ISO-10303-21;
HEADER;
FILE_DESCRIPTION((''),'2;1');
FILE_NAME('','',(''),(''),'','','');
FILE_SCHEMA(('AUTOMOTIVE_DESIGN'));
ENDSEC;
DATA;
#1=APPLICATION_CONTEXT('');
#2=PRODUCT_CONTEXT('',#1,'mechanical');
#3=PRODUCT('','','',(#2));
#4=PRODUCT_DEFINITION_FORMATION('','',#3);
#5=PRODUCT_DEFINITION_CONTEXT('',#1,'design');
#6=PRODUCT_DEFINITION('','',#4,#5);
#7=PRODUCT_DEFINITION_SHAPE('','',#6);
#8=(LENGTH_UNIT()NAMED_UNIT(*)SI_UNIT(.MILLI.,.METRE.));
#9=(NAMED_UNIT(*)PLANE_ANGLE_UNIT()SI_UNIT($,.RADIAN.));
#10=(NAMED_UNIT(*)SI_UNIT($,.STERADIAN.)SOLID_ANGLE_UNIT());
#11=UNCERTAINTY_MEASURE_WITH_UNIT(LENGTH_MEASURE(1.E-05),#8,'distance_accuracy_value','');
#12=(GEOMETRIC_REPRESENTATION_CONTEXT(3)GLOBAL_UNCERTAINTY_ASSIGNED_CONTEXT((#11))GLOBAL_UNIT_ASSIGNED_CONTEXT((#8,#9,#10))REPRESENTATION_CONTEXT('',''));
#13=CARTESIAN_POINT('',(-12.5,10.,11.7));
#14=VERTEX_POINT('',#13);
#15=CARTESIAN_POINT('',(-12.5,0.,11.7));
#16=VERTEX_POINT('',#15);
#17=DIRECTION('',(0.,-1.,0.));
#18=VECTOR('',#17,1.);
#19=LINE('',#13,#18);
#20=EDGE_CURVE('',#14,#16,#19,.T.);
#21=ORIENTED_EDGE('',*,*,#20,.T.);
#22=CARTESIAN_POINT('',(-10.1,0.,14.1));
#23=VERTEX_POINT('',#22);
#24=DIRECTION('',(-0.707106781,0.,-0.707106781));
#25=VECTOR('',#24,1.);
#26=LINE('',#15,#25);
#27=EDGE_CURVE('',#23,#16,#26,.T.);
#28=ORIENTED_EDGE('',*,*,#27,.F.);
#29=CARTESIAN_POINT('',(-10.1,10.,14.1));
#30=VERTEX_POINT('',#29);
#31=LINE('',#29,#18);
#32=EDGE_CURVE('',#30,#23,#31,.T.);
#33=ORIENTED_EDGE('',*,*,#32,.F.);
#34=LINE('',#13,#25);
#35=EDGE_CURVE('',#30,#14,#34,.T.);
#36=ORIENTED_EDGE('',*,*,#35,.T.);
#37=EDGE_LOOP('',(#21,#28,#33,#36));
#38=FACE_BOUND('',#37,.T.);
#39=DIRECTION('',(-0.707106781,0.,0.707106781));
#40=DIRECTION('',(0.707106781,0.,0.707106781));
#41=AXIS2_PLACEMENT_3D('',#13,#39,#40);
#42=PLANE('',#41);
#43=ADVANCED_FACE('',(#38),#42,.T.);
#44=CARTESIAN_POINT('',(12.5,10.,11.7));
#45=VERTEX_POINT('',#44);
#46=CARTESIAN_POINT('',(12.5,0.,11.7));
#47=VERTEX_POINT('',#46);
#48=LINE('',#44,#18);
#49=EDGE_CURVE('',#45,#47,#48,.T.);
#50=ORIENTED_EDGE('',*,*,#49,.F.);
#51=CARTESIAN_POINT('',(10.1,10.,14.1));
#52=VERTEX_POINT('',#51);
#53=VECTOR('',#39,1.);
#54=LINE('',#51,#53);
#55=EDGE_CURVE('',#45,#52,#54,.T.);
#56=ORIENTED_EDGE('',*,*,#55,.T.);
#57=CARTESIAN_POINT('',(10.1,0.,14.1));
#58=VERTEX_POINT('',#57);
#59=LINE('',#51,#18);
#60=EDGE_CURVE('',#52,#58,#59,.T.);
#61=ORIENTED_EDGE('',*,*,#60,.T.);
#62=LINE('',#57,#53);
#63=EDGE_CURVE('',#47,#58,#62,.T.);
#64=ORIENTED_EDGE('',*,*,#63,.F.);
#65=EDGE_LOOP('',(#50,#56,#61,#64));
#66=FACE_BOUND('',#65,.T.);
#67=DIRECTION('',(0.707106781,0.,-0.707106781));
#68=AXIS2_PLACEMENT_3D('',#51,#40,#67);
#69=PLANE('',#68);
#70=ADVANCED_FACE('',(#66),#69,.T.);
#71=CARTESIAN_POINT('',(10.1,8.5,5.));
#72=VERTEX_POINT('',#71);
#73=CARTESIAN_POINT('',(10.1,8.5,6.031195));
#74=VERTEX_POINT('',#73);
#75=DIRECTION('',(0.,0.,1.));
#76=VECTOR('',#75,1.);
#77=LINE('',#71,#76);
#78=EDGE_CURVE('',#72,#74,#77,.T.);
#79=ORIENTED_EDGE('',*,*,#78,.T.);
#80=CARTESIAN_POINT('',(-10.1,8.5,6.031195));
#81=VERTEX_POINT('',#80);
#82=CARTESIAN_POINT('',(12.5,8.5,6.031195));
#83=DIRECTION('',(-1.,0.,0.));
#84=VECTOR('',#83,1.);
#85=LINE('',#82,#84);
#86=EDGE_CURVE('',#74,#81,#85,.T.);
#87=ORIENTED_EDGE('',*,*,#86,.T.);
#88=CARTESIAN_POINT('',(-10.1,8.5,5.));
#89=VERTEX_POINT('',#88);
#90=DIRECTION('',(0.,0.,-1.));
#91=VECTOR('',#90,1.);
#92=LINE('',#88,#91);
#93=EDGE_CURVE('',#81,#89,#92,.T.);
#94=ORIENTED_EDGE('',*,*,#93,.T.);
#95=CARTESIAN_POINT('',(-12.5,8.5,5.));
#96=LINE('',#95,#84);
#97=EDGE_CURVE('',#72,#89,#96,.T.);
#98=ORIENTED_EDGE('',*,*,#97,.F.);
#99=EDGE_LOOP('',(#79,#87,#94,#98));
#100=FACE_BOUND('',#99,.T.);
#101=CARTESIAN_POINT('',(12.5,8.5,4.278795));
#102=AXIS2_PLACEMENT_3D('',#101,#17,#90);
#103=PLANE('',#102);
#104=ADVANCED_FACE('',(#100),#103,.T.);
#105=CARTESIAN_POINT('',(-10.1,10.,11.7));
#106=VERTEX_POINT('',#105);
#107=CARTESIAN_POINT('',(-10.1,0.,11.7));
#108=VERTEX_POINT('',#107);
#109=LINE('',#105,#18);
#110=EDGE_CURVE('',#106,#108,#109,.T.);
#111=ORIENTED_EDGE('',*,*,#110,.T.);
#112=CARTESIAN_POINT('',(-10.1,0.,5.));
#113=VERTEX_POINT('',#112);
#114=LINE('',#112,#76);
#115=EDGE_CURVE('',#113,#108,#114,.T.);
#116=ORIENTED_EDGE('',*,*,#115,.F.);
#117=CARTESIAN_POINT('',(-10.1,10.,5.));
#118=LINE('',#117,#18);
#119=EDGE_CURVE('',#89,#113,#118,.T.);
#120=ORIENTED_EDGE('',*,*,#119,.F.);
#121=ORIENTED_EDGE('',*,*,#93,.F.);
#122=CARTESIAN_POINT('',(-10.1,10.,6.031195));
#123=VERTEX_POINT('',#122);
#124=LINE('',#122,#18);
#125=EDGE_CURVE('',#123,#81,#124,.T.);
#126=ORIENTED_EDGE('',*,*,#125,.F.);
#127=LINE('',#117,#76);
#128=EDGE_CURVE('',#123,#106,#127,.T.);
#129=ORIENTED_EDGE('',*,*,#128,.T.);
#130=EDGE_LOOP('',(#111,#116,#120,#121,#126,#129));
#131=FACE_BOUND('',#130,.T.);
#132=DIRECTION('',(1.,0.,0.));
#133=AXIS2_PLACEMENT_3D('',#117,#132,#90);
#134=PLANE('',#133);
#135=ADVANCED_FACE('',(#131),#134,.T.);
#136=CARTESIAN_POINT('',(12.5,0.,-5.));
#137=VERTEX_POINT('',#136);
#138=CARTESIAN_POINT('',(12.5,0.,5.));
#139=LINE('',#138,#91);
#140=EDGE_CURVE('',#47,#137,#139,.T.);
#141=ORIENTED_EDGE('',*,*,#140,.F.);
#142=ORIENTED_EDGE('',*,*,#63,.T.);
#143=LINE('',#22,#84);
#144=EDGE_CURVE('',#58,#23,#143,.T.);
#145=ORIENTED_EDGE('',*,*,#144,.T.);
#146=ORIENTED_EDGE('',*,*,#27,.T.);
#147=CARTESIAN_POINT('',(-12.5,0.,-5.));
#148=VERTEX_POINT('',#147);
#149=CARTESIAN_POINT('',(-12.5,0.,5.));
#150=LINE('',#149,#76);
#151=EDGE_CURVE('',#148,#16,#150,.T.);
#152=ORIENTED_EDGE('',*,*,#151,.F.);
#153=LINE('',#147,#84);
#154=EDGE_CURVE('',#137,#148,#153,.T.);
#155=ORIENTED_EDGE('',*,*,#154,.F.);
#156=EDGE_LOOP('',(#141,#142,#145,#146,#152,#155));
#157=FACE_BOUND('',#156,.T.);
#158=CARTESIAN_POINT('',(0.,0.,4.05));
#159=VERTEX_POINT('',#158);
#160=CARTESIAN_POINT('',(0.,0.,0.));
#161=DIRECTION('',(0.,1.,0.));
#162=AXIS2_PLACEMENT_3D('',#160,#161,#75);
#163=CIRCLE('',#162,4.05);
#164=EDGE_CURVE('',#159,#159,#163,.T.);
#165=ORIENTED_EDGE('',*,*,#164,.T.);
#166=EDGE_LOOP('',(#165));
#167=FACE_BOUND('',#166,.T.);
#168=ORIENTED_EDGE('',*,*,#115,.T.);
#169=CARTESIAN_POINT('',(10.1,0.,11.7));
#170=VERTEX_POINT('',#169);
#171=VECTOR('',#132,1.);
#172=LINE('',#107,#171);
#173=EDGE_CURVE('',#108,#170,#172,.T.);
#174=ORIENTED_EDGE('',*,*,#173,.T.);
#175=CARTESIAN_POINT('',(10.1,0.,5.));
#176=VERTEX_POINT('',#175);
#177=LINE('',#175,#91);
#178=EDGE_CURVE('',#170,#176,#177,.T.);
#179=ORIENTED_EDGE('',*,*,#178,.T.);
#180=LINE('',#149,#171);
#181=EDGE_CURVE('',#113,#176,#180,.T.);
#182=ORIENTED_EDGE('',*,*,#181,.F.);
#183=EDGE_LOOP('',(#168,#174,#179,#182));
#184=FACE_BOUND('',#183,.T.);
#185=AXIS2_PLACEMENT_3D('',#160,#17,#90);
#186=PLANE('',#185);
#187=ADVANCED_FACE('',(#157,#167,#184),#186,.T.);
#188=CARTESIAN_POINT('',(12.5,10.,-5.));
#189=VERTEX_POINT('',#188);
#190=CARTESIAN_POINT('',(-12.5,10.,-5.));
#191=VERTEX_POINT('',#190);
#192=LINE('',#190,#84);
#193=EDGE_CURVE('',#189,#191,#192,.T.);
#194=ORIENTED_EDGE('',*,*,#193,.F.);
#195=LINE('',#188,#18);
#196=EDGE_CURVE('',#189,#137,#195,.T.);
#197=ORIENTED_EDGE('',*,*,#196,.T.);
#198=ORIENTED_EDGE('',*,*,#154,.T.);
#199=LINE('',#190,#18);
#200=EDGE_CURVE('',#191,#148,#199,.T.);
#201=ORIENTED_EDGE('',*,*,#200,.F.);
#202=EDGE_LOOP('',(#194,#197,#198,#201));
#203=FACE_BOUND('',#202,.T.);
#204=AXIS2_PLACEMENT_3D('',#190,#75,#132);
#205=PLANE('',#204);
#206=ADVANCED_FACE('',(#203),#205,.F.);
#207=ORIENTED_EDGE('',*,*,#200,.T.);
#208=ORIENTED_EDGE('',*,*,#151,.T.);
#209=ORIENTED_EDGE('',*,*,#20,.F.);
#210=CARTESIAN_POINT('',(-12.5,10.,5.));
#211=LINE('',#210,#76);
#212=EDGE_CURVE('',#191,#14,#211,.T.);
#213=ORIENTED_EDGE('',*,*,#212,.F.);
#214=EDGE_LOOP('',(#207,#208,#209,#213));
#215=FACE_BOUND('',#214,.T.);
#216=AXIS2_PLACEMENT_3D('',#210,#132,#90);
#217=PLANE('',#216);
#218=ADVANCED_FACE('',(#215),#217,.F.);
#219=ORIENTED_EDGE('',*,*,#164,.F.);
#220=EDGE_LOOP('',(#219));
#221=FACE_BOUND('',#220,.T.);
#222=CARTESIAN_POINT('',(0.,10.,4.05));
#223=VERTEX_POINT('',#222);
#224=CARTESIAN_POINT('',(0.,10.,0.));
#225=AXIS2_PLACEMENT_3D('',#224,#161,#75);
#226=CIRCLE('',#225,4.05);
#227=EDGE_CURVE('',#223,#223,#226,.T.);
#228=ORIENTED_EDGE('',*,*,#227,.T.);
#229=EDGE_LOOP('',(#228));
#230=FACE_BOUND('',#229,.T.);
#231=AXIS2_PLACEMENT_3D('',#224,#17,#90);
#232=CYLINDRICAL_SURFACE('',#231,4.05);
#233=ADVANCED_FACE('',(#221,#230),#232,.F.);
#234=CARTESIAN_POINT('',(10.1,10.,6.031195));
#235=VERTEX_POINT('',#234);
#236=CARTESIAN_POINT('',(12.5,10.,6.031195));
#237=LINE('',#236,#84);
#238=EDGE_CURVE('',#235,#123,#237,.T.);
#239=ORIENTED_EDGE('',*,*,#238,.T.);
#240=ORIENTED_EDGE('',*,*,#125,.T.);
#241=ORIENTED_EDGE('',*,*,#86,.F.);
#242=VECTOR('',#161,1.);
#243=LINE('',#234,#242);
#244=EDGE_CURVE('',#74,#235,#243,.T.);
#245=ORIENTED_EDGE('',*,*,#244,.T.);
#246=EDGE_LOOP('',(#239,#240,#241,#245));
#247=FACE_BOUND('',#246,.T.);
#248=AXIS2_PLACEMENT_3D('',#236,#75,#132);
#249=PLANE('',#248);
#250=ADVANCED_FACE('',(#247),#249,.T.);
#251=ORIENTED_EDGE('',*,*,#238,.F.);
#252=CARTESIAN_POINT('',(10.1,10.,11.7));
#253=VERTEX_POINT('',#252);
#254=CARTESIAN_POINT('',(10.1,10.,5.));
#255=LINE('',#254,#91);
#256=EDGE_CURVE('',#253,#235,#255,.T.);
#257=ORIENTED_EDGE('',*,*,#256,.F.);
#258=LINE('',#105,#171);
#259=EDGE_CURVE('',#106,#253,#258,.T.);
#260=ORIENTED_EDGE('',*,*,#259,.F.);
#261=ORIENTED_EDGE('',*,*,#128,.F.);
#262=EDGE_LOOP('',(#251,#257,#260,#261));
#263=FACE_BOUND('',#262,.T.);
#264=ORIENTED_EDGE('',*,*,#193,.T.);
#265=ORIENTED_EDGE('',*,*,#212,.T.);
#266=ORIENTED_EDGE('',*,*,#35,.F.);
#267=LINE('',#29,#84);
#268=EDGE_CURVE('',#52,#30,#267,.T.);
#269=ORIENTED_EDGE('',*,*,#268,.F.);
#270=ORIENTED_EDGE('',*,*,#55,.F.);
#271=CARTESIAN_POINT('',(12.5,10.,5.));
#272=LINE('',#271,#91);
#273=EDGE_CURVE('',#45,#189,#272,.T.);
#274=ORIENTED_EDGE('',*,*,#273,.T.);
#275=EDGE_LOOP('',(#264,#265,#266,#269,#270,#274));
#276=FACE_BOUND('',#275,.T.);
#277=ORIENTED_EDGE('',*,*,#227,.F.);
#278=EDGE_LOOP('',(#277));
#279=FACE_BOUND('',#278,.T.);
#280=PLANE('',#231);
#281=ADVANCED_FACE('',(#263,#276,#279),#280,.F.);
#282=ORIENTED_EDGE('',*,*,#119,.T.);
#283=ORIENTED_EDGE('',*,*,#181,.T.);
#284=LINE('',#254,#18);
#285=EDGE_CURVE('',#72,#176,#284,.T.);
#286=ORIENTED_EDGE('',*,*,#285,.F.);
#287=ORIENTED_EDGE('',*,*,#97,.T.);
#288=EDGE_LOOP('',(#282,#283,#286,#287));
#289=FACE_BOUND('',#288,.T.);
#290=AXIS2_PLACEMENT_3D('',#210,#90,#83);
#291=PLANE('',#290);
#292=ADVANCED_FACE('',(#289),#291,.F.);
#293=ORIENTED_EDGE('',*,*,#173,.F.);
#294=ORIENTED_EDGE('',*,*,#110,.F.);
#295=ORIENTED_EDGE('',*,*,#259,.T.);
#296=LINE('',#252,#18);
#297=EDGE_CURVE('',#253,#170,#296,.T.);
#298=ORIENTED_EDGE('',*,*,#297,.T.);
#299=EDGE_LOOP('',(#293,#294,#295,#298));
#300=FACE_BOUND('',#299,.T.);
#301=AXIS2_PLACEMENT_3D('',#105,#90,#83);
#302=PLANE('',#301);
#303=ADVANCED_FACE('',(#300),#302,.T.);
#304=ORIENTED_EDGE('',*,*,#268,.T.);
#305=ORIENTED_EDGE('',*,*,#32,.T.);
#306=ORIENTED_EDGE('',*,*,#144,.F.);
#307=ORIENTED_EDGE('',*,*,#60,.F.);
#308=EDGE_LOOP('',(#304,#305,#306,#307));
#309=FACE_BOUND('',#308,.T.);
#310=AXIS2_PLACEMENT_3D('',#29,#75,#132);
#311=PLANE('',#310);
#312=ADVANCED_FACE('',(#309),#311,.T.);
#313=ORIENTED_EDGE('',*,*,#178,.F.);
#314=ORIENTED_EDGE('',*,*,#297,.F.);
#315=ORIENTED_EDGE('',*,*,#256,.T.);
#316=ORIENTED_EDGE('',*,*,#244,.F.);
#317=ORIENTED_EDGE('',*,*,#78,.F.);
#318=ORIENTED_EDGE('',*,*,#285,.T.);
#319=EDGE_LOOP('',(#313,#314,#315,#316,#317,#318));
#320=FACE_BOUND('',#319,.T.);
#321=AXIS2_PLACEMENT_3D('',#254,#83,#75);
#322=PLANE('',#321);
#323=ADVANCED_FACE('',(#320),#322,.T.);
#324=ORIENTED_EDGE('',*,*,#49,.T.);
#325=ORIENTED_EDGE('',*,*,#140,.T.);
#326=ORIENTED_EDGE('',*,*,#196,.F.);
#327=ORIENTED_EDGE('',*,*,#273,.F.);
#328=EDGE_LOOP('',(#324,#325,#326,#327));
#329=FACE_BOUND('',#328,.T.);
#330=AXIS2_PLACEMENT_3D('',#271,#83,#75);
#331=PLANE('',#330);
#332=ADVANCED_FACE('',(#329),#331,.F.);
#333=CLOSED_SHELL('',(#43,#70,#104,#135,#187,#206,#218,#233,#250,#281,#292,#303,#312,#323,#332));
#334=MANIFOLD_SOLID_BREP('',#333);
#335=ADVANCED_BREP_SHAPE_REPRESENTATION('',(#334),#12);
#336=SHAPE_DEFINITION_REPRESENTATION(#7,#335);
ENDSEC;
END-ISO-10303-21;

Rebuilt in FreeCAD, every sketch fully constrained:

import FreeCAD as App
import Part
import Sketcher

V = App.Vector
Q = App.Units.Quantity

doc = App.newDocument("Part")
params = doc.addObject("Spreadsheet::Sheet", "Params")
for row, (alias, value) in enumerate([
    ("sketch1_diameter", "8.1 mm"),
    ("sketch1_width", "25 mm"),
    ("sketch1_height", "10 mm"),
    ("pad1_length", "10 mm"),
    ("sketch2_width", "2.4 mm"),
    ("sketch2_width2", "20.2 mm"),
    ("sketch2_height", "6.7 mm"),
    ("pad2_length", "10 mm"),
    ("sketch3_width", "1.5 mm"),
    ("pad3_length", "22.6 mm"),
], start=1):
    params.set(f"A{row}", alias)
    params.set(f"B{row}", "=" + value)
    params.setAlias(f"B{row}", alias)

body = doc.addObject("PartDesign::Body", "Body")

sketch1 = doc.addObject("Sketcher::SketchObject", "Sketch")
body.addObject(sketch1)
sketch1.AttachmentSupport = (doc.XZ_Plane, [""])
sketch1.MapMode = "FlatFace"
sketch1.addGeometry([
    Part.LineSegment(V(-12.5, -5, 0), V(-12.5, 5, 0)),
    Part.LineSegment(V(-12.5, 5, 0), V(12.5, 5, 0)),
    Part.LineSegment(V(12.5, 5, 0), V(12.5, -5, 0)),
    Part.LineSegment(V(12.5, -5, 0), V(-12.5, -5, 0)),
    Part.Circle(V(0, 0, 0), V(0, 0, 1), 4),
], False)
sketch1.addConstraint([
    Sketcher.Constraint("Coincident", 0, 2, 1, 1),
    Sketcher.Constraint("Coincident", 1, 2, 2, 1),
    Sketcher.Constraint("Coincident", 2, 2, 3, 1),
    Sketcher.Constraint("Coincident", 3, 2, 0, 1),
    Sketcher.Constraint("Vertical", 0),
    Sketcher.Constraint("Horizontal", 1),
    Sketcher.Constraint("Vertical", 2),
    Sketcher.Constraint("Horizontal", 3),
    Sketcher.Constraint("Coincident", 4, 3, -1, 1),
    Sketcher.Constraint("Symmetric", 0, 2, 2, 2, -1, 1),
    Sketcher.Constraint("Diameter", 4, Q("8.1 mm")),
    Sketcher.Constraint("DistanceX", 1, 1, 1, 2, Q("25 mm")),
    Sketcher.Constraint("DistanceY", 0, 1, 0, 2, Q("10 mm")),
])
sketch1.setExpression("Constraints[10]", "Params.sketch1_diameter")
sketch1.setExpression("Constraints[11]", "Params.sketch1_width")
sketch1.setExpression("Constraints[12]", "Params.sketch1_height")
pad1 = doc.addObject("PartDesign::Pad", "Pad")
body.addObject(pad1)
pad1.Profile = sketch1
pad1.setExpression("Length", "Params.pad1_length")
pad1.Reversed = True

sketch2 = doc.addObject("Sketcher::SketchObject", "Sketch001")
body.addObject(sketch2)
sketch2.AttachmentSupport = (doc.XZ_Plane, [""])
sketch2.MapMode = "FlatFace"
sketch2.addGeometry([
    Part.LineSegment(V(-12.5, 11.7, 0), V(-12.5, 5, 0)),
    Part.LineSegment(V(-12.5, 5, 0), V(-10.1, 5, 0)),
    Part.LineSegment(V(-10.1, 5, 0), V(-10.1, 11.7, 0)),
    Part.LineSegment(V(-10.1, 11.7, 0), V(10.1, 11.7, 0)),
    Part.LineSegment(V(10.1, 11.7, 0), V(10.1, 5, 0)),
    Part.LineSegment(V(10.1, 5, 0), V(12.5, 5, 0)),
    Part.LineSegment(V(12.5, 5, 0), V(12.5, 11.7, 0)),
    Part.LineSegment(V(12.5, 11.7, 0), V(10.1, 14.1, 0)),
    Part.LineSegment(V(10.1, 14.1, 0), V(-10.1, 14.1, 0)),
    Part.LineSegment(V(-10.1, 14.1, 0), V(-12.5, 11.7, 0)),
], False)
sketch2.addConstraint([
    Sketcher.Constraint("Coincident", 0, 2, 1, 1),
    Sketcher.Constraint("Coincident", 1, 2, 2, 1),
    Sketcher.Constraint("Coincident", 2, 2, 3, 1),
    Sketcher.Constraint("Coincident", 3, 2, 4, 1),
    Sketcher.Constraint("Coincident", 4, 2, 5, 1),
    Sketcher.Constraint("Coincident", 5, 2, 6, 1),
    Sketcher.Constraint("Coincident", 6, 2, 7, 1),
    Sketcher.Constraint("Coincident", 7, 2, 8, 1),
    Sketcher.Constraint("Coincident", 8, 2, 9, 1),
    Sketcher.Constraint("Coincident", 9, 2, 0, 1),
    Sketcher.Constraint("Vertical", 0),
    Sketcher.Constraint("Horizontal", 1),
    Sketcher.Constraint("Vertical", 2),
    Sketcher.Constraint("Horizontal", 3),
    Sketcher.Constraint("Vertical", 4),
    Sketcher.Constraint("Horizontal", 5),
    Sketcher.Constraint("Vertical", 6),
    Sketcher.Constraint("Horizontal", 8),
    Sketcher.Constraint("Symmetric", 1, 2, 4, 2, -2),
    Sketcher.Constraint("Symmetric", 6, 2, 9, 2, -2),
    Sketcher.Constraint("Perpendicular", 7, 9),
    Sketcher.Constraint("Horizontal", 3, 2, 6, 2),
    Sketcher.Constraint("Vertical", 4, 2, 7, 2),
    Sketcher.Constraint("Vertical", 2, 2, 8, 2),
    Sketcher.Constraint("DistanceX", 1, 1, 1, 2, Q("2.4 mm")),
    Sketcher.Constraint("DistanceX", 3, 1, 3, 2, Q("20.2 mm")),
    Sketcher.Constraint("DistanceY", 0, 2, 0, 1, Q("6.7 mm")),
    Sketcher.Constraint("DistanceY", -1, 1, 0, 2, Q("5 mm")),
])
sketch2.setExpression("Constraints[24]", "Params.sketch2_width")
sketch2.setExpression("Constraints[25]", "Params.sketch2_width2")
sketch2.setExpression("Constraints[26]", "Params.sketch2_height")
pad2 = doc.addObject("PartDesign::Pad", "Pad001")
body.addObject(pad2)
pad2.Profile = sketch2
pad2.setExpression("Length", "Params.pad2_length")
pad2.Reversed = True

sketch3 = doc.addObject("Sketcher::SketchObject", "Sketch002")
body.addObject(sketch3)
sketch3.AttachmentSupport = (doc.YZ_Plane, [""])
sketch3.MapMode = "FlatFace"
sketch3.AttachmentOffset = App.Placement(V(0, 0, -12.5), App.Rotation())
sketch3.addGeometry([
    Part.LineSegment(V(10, 4.3, 0), V(8.5, 4.3, 0)),
    Part.LineSegment(V(8.5, 4.3, 0), V(8.5, 6, 0)),
    Part.LineSegment(V(8.5, 6, 0), V(10, 6, 0)),
    Part.LineSegment(V(10, 6, 0), V(10, 4.3, 0)),
], False)
sketch3.addConstraint([
    Sketcher.Constraint("Coincident", 0, 2, 1, 1),
    Sketcher.Constraint("Coincident", 1, 2, 2, 1),
    Sketcher.Constraint("Coincident", 2, 2, 3, 1),
    Sketcher.Constraint("Coincident", 3, 2, 0, 1),
    Sketcher.Constraint("Horizontal", 0),
    Sketcher.Constraint("Vertical", 1),
    Sketcher.Constraint("Horizontal", 2),
    Sketcher.Constraint("Vertical", 3),
    Sketcher.Constraint("DistanceX", 0, 2, 0, 1, Q("1.5 mm")),
    Sketcher.Constraint("DistanceX", -1, 1, 2, 2, Q("10 mm")),
    Sketcher.Constraint("DistanceY", 1, 1, 1, 2, Q("1.752399 mm")),
    Sketcher.Constraint("DistanceY", -1, 1, 0, 2, Q("4.278795 mm")),
])
sketch3.setExpression("Constraints[8]", "Params.sketch3_width")
pad3 = doc.addObject("PartDesign::Pad", "Pad002")
body.addObject(pad3)
pad3.Profile = sketch3
pad3.setExpression("Length", "Params.pad3_length")

doc.recompute()
